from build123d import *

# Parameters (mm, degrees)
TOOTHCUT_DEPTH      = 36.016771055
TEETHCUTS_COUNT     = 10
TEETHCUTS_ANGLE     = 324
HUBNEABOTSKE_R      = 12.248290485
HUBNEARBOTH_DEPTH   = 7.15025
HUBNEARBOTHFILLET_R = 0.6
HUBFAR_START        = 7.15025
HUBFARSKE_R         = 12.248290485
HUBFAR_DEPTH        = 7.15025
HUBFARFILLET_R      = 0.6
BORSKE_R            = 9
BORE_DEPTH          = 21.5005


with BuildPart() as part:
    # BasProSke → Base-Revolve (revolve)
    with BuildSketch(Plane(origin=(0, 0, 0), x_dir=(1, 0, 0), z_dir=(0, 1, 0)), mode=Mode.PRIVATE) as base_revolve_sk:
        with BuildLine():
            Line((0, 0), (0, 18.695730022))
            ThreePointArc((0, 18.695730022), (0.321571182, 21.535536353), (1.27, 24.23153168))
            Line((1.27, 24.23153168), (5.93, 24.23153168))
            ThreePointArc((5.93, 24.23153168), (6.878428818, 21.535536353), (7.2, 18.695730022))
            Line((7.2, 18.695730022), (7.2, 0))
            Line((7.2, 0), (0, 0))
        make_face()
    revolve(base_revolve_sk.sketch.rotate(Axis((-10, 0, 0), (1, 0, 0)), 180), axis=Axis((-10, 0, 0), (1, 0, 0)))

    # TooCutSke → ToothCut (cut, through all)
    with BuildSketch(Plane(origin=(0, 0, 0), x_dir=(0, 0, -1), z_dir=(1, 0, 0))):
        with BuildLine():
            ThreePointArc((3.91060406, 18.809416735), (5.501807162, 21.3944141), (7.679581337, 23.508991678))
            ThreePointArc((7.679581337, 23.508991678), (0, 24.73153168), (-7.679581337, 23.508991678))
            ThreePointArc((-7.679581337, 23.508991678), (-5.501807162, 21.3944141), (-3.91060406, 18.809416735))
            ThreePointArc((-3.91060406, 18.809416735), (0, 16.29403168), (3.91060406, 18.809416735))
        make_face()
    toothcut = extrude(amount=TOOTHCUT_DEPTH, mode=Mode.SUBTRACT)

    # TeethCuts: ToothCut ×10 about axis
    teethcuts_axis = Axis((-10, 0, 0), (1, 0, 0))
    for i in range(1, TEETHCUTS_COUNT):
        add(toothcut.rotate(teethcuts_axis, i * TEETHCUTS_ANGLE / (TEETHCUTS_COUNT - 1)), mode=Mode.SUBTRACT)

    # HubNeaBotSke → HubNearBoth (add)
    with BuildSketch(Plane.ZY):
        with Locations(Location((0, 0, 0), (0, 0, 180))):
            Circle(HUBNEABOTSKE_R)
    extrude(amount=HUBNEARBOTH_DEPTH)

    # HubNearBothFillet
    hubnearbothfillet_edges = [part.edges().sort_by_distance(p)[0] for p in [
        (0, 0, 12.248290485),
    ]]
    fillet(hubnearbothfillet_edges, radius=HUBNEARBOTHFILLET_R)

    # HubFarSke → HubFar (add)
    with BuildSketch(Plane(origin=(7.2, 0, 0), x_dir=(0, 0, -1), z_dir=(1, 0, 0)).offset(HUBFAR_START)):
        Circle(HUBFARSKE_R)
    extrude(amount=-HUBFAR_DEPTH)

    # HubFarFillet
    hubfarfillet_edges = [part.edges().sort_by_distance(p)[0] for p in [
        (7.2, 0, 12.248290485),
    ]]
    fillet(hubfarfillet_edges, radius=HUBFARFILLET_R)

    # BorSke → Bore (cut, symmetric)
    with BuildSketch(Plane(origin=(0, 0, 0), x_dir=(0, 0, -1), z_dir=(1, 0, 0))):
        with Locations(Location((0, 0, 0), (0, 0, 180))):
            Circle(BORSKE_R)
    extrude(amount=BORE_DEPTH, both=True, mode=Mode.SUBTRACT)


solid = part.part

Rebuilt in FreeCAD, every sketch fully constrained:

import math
import FreeCAD as App
import Part
import Sketcher


def edges_at(feature, points):
    """Names of the edges that pass closest to the given points."""
    edges = feature.Shape.Edges
    near = lambda p: min(range(len(edges)), key=lambda i: edges[i].distToShape(Part.Vertex(*p))[0])
    return sorted({f"Edge{near(p) + 1}" for p in points})

doc = App.newDocument("Part")
body = doc.addObject("PartDesign::Body", "Body")

# Sketch on XZ plane
sketch1 = body.newObject("Sketcher::SketchObject", "Sketch")
sketch1.AttachmentSupport = (doc.getObject("XZ_Plane"), [""])
sketch1.MapMode = "FlatFace"
sketch1.addGeometry([
    Part.LineSegment(App.Vector(0, -18.7, 0), App.Vector(0, 0, 0)),  # 0
    Part.LineSegment(App.Vector(0, 0, 0), App.Vector(7.2, 0, 0)),  # 1
    Part.LineSegment(App.Vector(7.2, 0, 0), App.Vector(7.2, -18.7, 0)),  # 2
    Part.ArcOfCircle(Part.Circle(App.Vector(-5.5, -18.7, 0), App.Vector(0, 0, 1), 12.7), math.radians(-26), math.radians(0)),  # 3
    Part.LineSegment(App.Vector(5.9, -24.2, 0), App.Vector(1.3, -24.2, 0)),  # 4
    Part.ArcOfCircle(Part.Circle(App.Vector(12.7, -18.7, 0), App.Vector(0, 0, 1), 12.7), math.radians(180), math.radians(206)),  # 5
], False)
sketch1.addConstraint([
    Sketcher.Constraint("Coincident", 0, 2, 1, 1),
    Sketcher.Constraint("Coincident", 1, 2, 2, 1),
    Sketcher.Constraint("Tangent", 2, 2, 3, 2),
    Sketcher.Constraint("Coincident", 3, 1, 4, 1),
    Sketcher.Constraint("Coincident", 4, 2, 5, 2),
    Sketcher.Constraint("Tangent", 5, 1, 0, 1),
    Sketcher.Constraint("Vertical", 0),
    Sketcher.Constraint("Horizontal", 1),
    Sketcher.Constraint("Vertical", 2),
    Sketcher.Constraint("Horizontal", 4),
    Sketcher.Constraint("Coincident", 0, 2, -1, 1),
    Sketcher.Constraint("Equal", 3, 5),
    Sketcher.Constraint("Horizontal", 3, 3, 5, 3),
    Sketcher.Constraint("Radius", 3, 12.7),
    Sketcher.Constraint("DistanceX", 1, 1, 1, 2, 7.2),
    Sketcher.Constraint("DistanceX", 4, 2, 4, 1, 4.66),
    Sketcher.Constraint("DistanceY", 0, 1, 0, 2, 18.69573),
])
revolution = body.newObject("PartDesign::Revolution", "Revolution")
revolution.Profile = sketch1
revolution.ReferenceAxis = (sketch1, ["H_Axis"])
revolution.Angle = 360

# Sketch on YZ plane
sketch2 = body.newObject("Sketcher::SketchObject", "Sketch001")
sketch2.AttachmentSupport = (doc.getObject("YZ_Plane"), [""])
sketch2.MapMode = "FlatFace"
sketch2.addGeometry([
    Part.ArcOfCircle(Part.Circle(App.Vector(13.7, -15.1, 0), App.Vector(0, 0, 1), 12.3), math.radians(37), math.radians(66)),
    Part.ArcOfCircle(Part.Circle(App.Vector(0, 0, 0), App.Vector(0, 0, 1), 24.7), math.radians(-18), math.radians(18)),
    Part.ArcOfCircle(Part.Circle(App.Vector(13.7, 15.1, 0), App.Vector(0, 0, 1), 12.3), math.radians(-66), math.radians(-37)),
    Part.ArcOfCircle(Part.Circle(App.Vector(20.6, 0, 0), App.Vector(0, 0, 1), 4.3), math.radians(115), math.radians(245)),
], False)
sketch2.addConstraint([
    Sketcher.Constraint("Coincident", 0, 1, 1, 1),
    Sketcher.Constraint("Coincident", 1, 2, 2, 2),
    Sketcher.Constraint("Tangent", 2, 1, 3, 1),
    Sketcher.Constraint("Tangent", 3, 2, 0, 2),
    Sketcher.Constraint("Coincident", 1, 3, -1, 1),
    Sketcher.Constraint("Equal", 0, 2),
    Sketcher.Constraint("Symmetric", 0, 3, 2, 3, -1),
    Sketcher.Constraint("Radius", 0, 12.2544),
    Sketcher.Constraint("Radius", 1, 24.731532),
    Sketcher.Constraint("Radius", 3, 4.29755),
    Sketcher.Constraint("DistanceX", -1, 1, 0, 3, 13.7276),
    Sketcher.Constraint("DistanceX", -1, 1, 3, 3, 20.591582),
])
pocket1 = body.newObject("PartDesign::Pocket", "Pocket")
pocket1.Profile = sketch2
pocket1.Type = "ThroughAll"
pocket1.Reversed = True
doc.recompute()

polarpattern = body.newObject("PartDesign::PolarPattern", "PolarPattern")
polarpattern.Originals = [pocket1]
polarpattern.Axis = (doc.getObject("X_Axis"), [""])
polarpattern.Angle = 360
polarpattern.Occurrences = 10
body.Tip = polarpattern

# Sketch on YZ plane
sketch3 = body.newObject("Sketcher::SketchObject", "Sketch002")
sketch3.AttachmentSupport = (doc.getObject("YZ_Plane"), [""])
sketch3.MapMode = "FlatFace"
sketch3.addGeometry(Part.Circle(App.Vector(0, 0, 0), App.Vector(0, 0, 1), 12), False)
sketch3.addConstraint([
    Sketcher.Constraint("Coincident", 0, 3, -1, 1),
    Sketcher.Constraint("Diameter", 0, 24.496581),
])
pad1 = body.newObject("PartDesign::Pad", "Pad")
pad1.Profile = sketch3
pad1.Length = 7.15025
pad1.Reversed = True
doc.recompute()

fillet = body.newObject("PartDesign::Fillet", "Fillet")
fillet.Base = (pad1, edges_at(pad1, [(0, 0, 12.248)]))
fillet.Radius = 0.6

# Sketch on YZ plane
sketch4 = body.newObject("Sketcher::SketchObject", "Sketch003")
sketch4.AttachmentSupport = (doc.getObject("YZ_Plane"), [""])
sketch4.MapMode = "FlatFace"
sketch4.AttachmentOffset = App.Placement(App.Vector(0, 0, 14.35025), App.Rotation())
sketch4.addGeometry(Part.Circle(App.Vector(0, 0, 0), App.Vector(0, 0, 1), 12), False)
sketch4.addConstraint([
    Sketcher.Constraint("Coincident", 0, 3, -1, 1),
    Sketcher.Constraint("Diameter", 0, 24.496581),
])
pad2 = body.newObject("PartDesign::Pad", "Pad001")
pad2.Profile = sketch4
pad2.Length = 7.15025
pad2.Reversed = True
doc.recompute()

fillet2 = body.newObject("PartDesign::Fillet", "Fillet001")
fillet2.Base = (pad2, edges_at(pad2, [(7.2, 0, 12.248)]))
fillet2.Radius = 0.6

# Sketch on YZ plane
sketch5 = body.newObject("Sketcher::SketchObject", "Sketch004")
sketch5.AttachmentSupport = (doc.getObject("YZ_Plane"), [""])
sketch5.MapMode = "FlatFace"
sketch5.addGeometry(Part.Circle(App.Vector(0, 0, 0), App.Vector(0, 0, 1), 9), False)
sketch5.addConstraint([
    Sketcher.Constraint("Coincident", 0, 3, -1, 1),
    Sketcher.Constraint("Diameter", 0, 18.0),
])
pocket2 = body.newObject("PartDesign::Pocket", "Pocket001")
pocket2.Profile = sketch5
pocket2.Length = 43.001
pocket2.Midplane = True

doc.recompute()
